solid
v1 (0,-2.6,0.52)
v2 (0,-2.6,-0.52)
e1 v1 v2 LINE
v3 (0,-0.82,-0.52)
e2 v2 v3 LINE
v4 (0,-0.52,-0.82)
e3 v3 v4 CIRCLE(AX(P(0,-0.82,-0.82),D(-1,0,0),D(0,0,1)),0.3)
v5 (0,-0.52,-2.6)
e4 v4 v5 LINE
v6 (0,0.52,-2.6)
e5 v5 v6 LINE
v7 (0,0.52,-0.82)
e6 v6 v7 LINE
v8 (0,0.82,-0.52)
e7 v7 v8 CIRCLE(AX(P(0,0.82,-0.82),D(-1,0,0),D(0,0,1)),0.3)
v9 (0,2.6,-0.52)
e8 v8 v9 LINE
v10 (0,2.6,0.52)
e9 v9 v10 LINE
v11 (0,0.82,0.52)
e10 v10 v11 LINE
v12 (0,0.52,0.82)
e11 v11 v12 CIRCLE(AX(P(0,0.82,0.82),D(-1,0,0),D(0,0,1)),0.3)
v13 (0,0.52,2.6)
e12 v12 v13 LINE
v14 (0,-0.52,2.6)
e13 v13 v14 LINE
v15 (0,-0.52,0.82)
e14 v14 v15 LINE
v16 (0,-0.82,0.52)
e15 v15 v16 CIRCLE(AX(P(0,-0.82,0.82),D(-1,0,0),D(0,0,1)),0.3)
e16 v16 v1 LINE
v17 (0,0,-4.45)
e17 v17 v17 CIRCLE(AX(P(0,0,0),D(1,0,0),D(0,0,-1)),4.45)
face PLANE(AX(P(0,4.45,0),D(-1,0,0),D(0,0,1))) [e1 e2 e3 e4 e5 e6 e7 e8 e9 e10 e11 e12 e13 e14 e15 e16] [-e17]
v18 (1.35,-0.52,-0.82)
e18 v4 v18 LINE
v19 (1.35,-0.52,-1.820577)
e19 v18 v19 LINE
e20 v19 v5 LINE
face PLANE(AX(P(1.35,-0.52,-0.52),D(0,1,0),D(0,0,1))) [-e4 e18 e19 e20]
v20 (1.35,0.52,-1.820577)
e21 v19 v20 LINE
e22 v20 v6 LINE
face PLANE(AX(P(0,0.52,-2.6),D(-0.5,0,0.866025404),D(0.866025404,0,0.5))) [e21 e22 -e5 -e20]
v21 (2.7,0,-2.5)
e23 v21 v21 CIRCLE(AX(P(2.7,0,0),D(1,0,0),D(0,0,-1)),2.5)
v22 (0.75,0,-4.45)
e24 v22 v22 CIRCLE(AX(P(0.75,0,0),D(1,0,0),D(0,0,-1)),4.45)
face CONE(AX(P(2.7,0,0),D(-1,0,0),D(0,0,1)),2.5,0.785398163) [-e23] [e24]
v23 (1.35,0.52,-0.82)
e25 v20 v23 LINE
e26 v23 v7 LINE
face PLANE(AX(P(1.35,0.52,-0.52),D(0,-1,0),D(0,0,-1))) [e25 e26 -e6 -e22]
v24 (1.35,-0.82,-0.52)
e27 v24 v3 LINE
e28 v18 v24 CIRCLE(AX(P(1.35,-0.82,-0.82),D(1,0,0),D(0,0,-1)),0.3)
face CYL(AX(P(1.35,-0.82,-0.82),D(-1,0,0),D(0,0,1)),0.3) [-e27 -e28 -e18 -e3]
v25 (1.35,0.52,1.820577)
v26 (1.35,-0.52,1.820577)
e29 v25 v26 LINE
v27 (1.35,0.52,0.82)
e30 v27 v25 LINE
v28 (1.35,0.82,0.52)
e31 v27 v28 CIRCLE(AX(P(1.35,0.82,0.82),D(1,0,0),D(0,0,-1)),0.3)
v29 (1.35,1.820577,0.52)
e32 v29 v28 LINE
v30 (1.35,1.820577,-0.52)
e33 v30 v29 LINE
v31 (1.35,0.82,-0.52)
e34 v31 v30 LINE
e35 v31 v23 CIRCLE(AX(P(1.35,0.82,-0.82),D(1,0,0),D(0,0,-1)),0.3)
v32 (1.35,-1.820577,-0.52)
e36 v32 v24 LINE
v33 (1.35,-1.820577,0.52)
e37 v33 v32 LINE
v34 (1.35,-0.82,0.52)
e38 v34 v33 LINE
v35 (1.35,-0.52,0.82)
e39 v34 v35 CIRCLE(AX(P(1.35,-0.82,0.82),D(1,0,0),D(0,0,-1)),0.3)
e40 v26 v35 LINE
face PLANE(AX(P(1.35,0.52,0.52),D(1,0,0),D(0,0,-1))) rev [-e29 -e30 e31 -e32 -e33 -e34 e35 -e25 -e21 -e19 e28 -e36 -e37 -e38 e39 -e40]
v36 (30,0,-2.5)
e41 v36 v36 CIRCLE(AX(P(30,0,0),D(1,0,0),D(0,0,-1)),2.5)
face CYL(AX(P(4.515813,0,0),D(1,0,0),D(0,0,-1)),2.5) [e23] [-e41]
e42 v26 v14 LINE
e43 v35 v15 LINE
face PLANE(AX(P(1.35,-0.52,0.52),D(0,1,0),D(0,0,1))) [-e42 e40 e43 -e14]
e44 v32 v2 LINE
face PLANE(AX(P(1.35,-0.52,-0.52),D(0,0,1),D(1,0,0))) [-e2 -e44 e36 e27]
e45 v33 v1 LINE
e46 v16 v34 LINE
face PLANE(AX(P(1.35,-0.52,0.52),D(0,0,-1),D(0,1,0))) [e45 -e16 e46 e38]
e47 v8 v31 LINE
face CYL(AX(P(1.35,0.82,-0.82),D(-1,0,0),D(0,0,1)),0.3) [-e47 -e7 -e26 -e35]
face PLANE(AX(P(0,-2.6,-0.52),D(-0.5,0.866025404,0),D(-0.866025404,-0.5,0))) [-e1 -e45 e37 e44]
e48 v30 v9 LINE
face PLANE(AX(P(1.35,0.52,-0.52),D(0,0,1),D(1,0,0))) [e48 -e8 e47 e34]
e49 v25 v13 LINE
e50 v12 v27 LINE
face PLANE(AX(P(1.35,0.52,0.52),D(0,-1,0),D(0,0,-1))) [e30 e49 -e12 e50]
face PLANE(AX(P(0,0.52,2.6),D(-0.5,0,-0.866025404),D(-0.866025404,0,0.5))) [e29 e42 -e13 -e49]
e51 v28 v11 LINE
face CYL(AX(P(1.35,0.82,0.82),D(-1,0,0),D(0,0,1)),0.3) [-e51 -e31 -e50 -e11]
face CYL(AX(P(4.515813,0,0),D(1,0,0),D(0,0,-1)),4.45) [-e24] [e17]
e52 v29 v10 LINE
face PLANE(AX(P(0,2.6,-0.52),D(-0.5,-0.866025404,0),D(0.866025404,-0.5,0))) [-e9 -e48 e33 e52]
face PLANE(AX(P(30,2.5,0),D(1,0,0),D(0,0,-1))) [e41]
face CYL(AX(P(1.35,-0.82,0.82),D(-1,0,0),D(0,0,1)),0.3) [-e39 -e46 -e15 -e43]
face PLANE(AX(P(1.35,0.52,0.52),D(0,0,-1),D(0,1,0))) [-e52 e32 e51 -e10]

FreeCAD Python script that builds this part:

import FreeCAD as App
import Part
import Sketcher

V = App.Vector
Q = App.Units.Quantity


def edges_at(feature, points):
    """Names of the edges that pass closest to the given points."""
    edges = feature.Shape.Edges
    near = lambda p: min(range(len(edges)), key=lambda i: edges[i].distToShape(Part.Vertex(*p))[0])
    return sorted({f"Edge{near(p) + 1}" for p in points})


def faces_at(feature, points):
    """Names of the faces that lie closest to the given points."""
    faces = feature.Shape.Faces
    near = lambda p: min(range(len(faces)), key=lambda i: faces[i].distToShape(Part.Vertex(*p))[0])
    return sorted({f"Face{near(p) + 1}" for p in points})

doc = App.newDocument("Part")
params = doc.addObject("Spreadsheet::Sheet", "Params")
for row, (alias, value) in enumerate([
    ("sketch1_width", "30 mm"),
    ("sketch1_width2", "27.3 mm"),
    ("sketch1_height", "2.5 mm"),
    ("sketch1_width3", "0.75 mm"),
    ("revolution_angle", "360 deg"),
    ("sketch2_width", "2.08 mm"),
    ("sketch2_width2", "1.04 mm"),
    ("pocket1_length", "1.35 mm"),
    ("draft_angle", "30 deg"),
    ("fillet_radius", "0.3 mm"),
    ("sketch3_width", "0.8 mm"),
    ("sketch3_height", "2.5 mm"),
    ("revolution2_angle", "360 deg"),
], start=1):
    params.set(f"A{row}", alias)
    params.set(f"B{row}", "=" + value)
    params.setAlias(f"B{row}", alias)

body = doc.addObject("PartDesign::Body", "Body")

sketch1 = body.newObject("Sketcher::SketchObject", "Sketch")
sketch1.AttachmentSupport = (doc.getObject("XY_Plane"), [""])
sketch1.MapMode = "FlatFace"
sketch1.addGeometry([
    Part.LineSegment(V(30, 2.5, 0), V(2.7, 2.5, 0)),
    Part.LineSegment(V(2.7, 2.5, 0), V(0.75, 4.45, 0)),
    Part.LineSegment(V(0.75, 4.45, 0), V(0, 4.45, 0)),
    Part.LineSegment(V(0, 4.45, 0), V(0, 0, 0)),
    Part.LineSegment(V(0, 0, 0), V(30, 0, 0)),
    Part.LineSegment(V(30, 0, 0), V(30, 2.5, 0)),
], False)
sketch1.addConstraint([
    Sketcher.Constraint("Coincident", 0, 2, 1, 1),
    Sketcher.Constraint("Coincident", 1, 2, 2, 1),
    Sketcher.Constraint("Coincident", 2, 2, 3, 1),
    Sketcher.Constraint("Coincident", 3, 2, 4, 1),
    Sketcher.Constraint("Coincident", 4, 2, 5, 1),
    Sketcher.Constraint("Coincident", 5, 2, 0, 1),
    Sketcher.Constraint("Horizontal", 0),
    Sketcher.Constraint("Horizontal", 2),
    Sketcher.Constraint("Vertical", 3),
    Sketcher.Constraint("Horizontal", 4),
    Sketcher.Constraint("Vertical", 5),
    Sketcher.Constraint("Coincident", 3, 2, -1, 1),
    Sketcher.Constraint("DistanceX", 4, 1, 4, 2, Q("30 mm")),
    Sketcher.Constraint("Angle", 1, Q("135 deg")),
    Sketcher.Constraint("DistanceX", 0, 2, 0, 1, Q("27.3 mm")),
    Sketcher.Constraint("DistanceY", 5, 1, 5, 2, Q("2.5 mm")),
    Sketcher.Constraint("DistanceX", 2, 2, 2, 1, Q("0.75 mm")),
])
sketch1.setExpression("Constraints[12]", "Params.sketch1_width")
sketch1.setExpression("Constraints[14]", "Params.sketch1_width2")
sketch1.setExpression("Constraints[15]", "Params.sketch1_height")
sketch1.setExpression("Constraints[16]", "Params.sketch1_width3")
revolution = body.newObject("PartDesign::Revolution", "Revolution")
revolution.Profile = sketch1
revolution.ReferenceAxis = (sketch1, ["H_Axis"])
revolution.setExpression("Angle", "Params.revolution_angle")

sketch2 = body.newObject("Sketcher::SketchObject", "Sketch001")
sketch2.AttachmentSupport = (doc.getObject("YZ_Plane"), [""])
sketch2.MapMode = "FlatFace"
sketch2.addGeometry([
    Part.LineSegment(V(0.52, -0.52, 0), V(2.6, -0.52, 0)),
    Part.LineSegment(V(2.6, -0.52, 0), V(2.6, 0.52, 0)),
    Part.LineSegment(V(2.6, 0.52, 0), V(0.52, 0.52, 0)),
    Part.LineSegment(V(0.52, 0.52, 0), V(0.52, 2.6, 0)),
    Part.LineSegment(V(0.52, 2.6, 0), V(-0.52, 2.6, 0)),
    Part.LineSegment(V(-0.52, 2.6, 0), V(-0.52, 0.52, 0)),
    Part.LineSegment(V(-0.52, 0.52, 0), V(-2.6, 0.52, 0)),
    Part.LineSegment(V(-2.6, 0.52, 0), V(-2.6, -0.52, 0)),
    Part.LineSegment(V(-2.6, -0.52, 0), V(-0.52, -0.52, 0)),
    Part.LineSegment(V(-0.52, -0.52, 0), V(-0.52, -2.6, 0)),
    Part.LineSegment(V(-0.52, -2.6, 0), V(0.52, -2.6, 0)),
    Part.LineSegment(V(0.52, -2.6, 0), V(0.52, -0.52, 0)),
], False)
sketch2.addConstraint([
    Sketcher.Constraint("Coincident", 0, 2, 1, 1),
    Sketcher.Constraint("Coincident", 1, 2, 2, 1),
    Sketcher.Constraint("Coincident", 2, 2, 3, 1),
    Sketcher.Constraint("Coincident", 3, 2, 4, 1),
    Sketcher.Constraint("Coincident", 4, 2, 5, 1),
    Sketcher.Constraint("Coincident", 5, 2, 6, 1),
    Sketcher.Constraint("Coincident", 6, 2, 7, 1),
    Sketcher.Constraint("Coincident", 7, 2, 8, 1),
    Sketcher.Constraint("Coincident", 8, 2, 9, 1),
    Sketcher.Constraint("Coincident", 9, 2, 10, 1),
    Sketcher.Constraint("Coincident", 10, 2, 11, 1),
    Sketcher.Constraint("Coincident", 11, 2, 0, 1),
    Sketcher.Constraint("Horizontal", 0),
    Sketcher.Constraint("Vertical", 1),
    Sketcher.Constraint("Horizontal", 2),
    Sketcher.Constraint("Vertical", 3),
    Sketcher.Constraint("Horizontal", 4),
    Sketcher.Constraint("Vertical", 5),
    Sketcher.Constraint("Horizontal", 6),
    Sketcher.Constraint("Vertical", 7),
    Sketcher.Constraint("Horizontal", 8),
    Sketcher.Constraint("Vertical", 9),
    Sketcher.Constraint("Horizontal", 10),
    Sketcher.Constraint("Vertical", 11),
    Sketcher.Constraint("Symmetric", 0, 2, 6, 2, -1, 1),
    Sketcher.Constraint("Symmetric", 2, 2, 8, 2, -1, 1),
    Sketcher.Constraint("Symmetric", 4, 2, 10, 2, -1, 1),
    Sketcher.Constraint("Symmetric", 2, 2, 5, 2, -2),
    Sketcher.Constraint("Equal", 10, 1),
    Sketcher.Constraint("Equal", 8, 3),
    Sketcher.Constraint("DistanceX", 0, 1, 0, 2, Q("2.08 mm")),
    Sketcher.Constraint("DistanceX", 4, 2, 4, 1, Q("1.04 mm")),
])
sketch2.setExpression("Constraints[30]", "Params.sketch2_width")
sketch2.setExpression("Constraints[31]", "Params.sketch2_width2")
pocket1 = body.newObject("PartDesign::Pocket", "Pocket")
pocket1.Profile = sketch2
pocket1.setExpression("Length", "Params.pocket1_length")
pocket1.Reversed = True
doc.recompute()

draft = body.newObject("PartDesign::Draft", "Draft")
draft.Base = (pocket1, faces_at(pocket1, [
    (0.675, -2.6, 0),
    (0.675, 0, 2.6),
    (0.675, 0, -2.6),
    (0.675, 2.6, 0),
]))
draft.NeutralPlane = (doc.getObject("YZ_Plane"), [""])
draft.setExpression("Angle", "Params.draft_angle")
draft.Reversed = True
doc.recompute()

fillet = body.newObject("PartDesign::Fillet", "Fillet")
fillet.Base = (draft, edges_at(draft, [
    (0.675, 0.52, 0.52),
    (0.675, -0.52, 0.52),
    (0.675, -0.52, -0.52),
    (0.675, 0.52, -0.52),
]))
fillet.setExpression("Radius", "Params.fillet_radius")

sketch3 = body.newObject("Sketcher::SketchObject", "Sketch002")
sketch3.AttachmentSupport = (doc.getObject("XY_Plane"), [""])
sketch3.MapMode = "FlatFace"
sketch3.addGeometry([
    Part.LineSegment(V(2.7, 2.5, 0), V(2.7, 0, 0)),
    Part.LineSegment(V(2.7, 0, 0), V(3.5, 0, 0)),
    Part.LineSegment(V(3.5, 0, 0), V(3.5, 2.5, 0)),
    Part.LineSegment(V(3.5, 2.5, 0), V(2.7, 2.5, 0)),
], False)
sketch3.addConstraint([
    Sketcher.Constraint("Coincident", 0, 2, 1, 1),
    Sketcher.Constraint("Coincident", 1, 2, 2, 1),
    Sketcher.Constraint("Coincident", 2, 2, 3, 1),
    Sketcher.Constraint("Coincident", 3, 2, 0, 1),
    Sketcher.Constraint("Vertical", 0),
    Sketcher.Constraint("Horizontal", 1),
    Sketcher.Constraint("Vertical", 2),
    Sketcher.Constraint("Horizontal", 3),
    Sketcher.Constraint("PointOnObject", 0, 2, -1),
    Sketcher.Constraint("DistanceX", 1, 1, 1, 2, Q("0.8 mm")),
    Sketcher.Constraint("DistanceY", 0, 2, 0, 1, Q("2.5 mm")),
    Sketcher.Constraint("DistanceX", -1, 1, 0, 2, Q("2.7 mm")),
])
sketch3.setExpression("Constraints[9]", "Params.sketch3_width")
sketch3.setExpression("Constraints[10]", "Params.sketch3_height")
revolution2 = body.newObject("PartDesign::Revolution", "Revolution001")
revolution2.Profile = sketch3
revolution2.ReferenceAxis = (sketch3, ["H_Axis"])
revolution2.setExpression("Angle", "Params.revolution2_angle")

doc.recompute()
